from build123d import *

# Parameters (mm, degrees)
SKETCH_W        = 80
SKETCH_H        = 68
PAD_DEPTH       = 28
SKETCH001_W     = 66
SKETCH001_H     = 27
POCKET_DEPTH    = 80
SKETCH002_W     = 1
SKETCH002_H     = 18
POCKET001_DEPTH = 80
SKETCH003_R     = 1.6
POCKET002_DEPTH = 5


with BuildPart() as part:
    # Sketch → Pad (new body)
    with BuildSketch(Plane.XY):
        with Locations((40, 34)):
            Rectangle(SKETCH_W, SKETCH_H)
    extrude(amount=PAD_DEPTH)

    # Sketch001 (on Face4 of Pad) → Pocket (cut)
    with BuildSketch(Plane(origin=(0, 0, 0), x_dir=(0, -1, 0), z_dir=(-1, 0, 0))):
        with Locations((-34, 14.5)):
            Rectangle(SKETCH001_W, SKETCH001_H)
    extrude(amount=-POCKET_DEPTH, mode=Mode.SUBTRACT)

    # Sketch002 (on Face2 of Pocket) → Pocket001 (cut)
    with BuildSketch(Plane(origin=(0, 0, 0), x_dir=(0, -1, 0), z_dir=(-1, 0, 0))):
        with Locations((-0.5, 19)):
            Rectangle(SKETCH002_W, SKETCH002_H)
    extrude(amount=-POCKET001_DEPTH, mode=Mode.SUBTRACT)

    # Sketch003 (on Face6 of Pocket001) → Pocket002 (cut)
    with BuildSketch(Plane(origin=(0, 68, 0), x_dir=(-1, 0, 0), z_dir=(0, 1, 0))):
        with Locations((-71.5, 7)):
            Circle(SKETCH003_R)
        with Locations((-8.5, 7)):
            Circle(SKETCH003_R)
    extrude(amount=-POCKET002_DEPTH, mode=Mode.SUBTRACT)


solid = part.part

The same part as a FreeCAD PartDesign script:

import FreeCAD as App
import Part
import Sketcher
from FreeCAD import Vector


def add_polygon(sketch, points):
    """Adds a closed chain of lines whose ends are joined by coincident constraints."""
    first, n = sketch.GeometryCount, len(points)
    for a, b in zip(points, points[1:] + points[:1]):
        sketch.addGeometry(Part.LineSegment(App.Vector(*a, 0), App.Vector(*b, 0)), False)
    for i in range(n):
        sketch.addConstraint(Sketcher.Constraint("Coincident", first + i, 2, first + (i + 1) % n, 1))

doc = App.newDocument("Part")
body = doc.addObject("PartDesign::Body", "Body")

sketch1 = body.newObject("Sketcher::SketchObject", "Sketch")
sketch1.AttachmentSupport = (doc.getObject("XY_Plane"), [""])
sketch1.MapMode = "FlatFace"
add_polygon(sketch1, [(0, 68), (0, 0), (80, 0), (80, 68)])
sketch1.addConstraint([
    Sketcher.Constraint("Vertical", 0),
    Sketcher.Constraint("Horizontal", 1),
    Sketcher.Constraint("Vertical", 2),
    Sketcher.Constraint("Horizontal", 3),
    Sketcher.Constraint("Coincident", 0, 2, -1, 1),
    Sketcher.Constraint("DistanceX", 1, 1, 1, 2, 80.0),
    Sketcher.Constraint("DistanceY", 0, 2, 0, 1, 68.0),
])
pad1 = body.newObject("PartDesign::Pad", "Pad")
pad1.Profile = sketch1
pad1.Length = 28

sketch2 = body.newObject("Sketcher::SketchObject", "Sketch001")
sketch2.AttachmentSupport = (doc.getObject("YZ_Plane"), [""])
sketch2.MapMode = "FlatFace"
add_polygon(sketch2, [(67, 28), (67, 1), (1, 1), (1, 28)])
sketch2.addConstraint([
    Sketcher.Constraint("Vertical", 0),
    Sketcher.Constraint("Horizontal", 1),
    Sketcher.Constraint("Vertical", 2),
    Sketcher.Constraint("Horizontal", 3),
    Sketcher.Constraint("DistanceX", 1, 2, 1, 1, 66.0),
    Sketcher.Constraint("DistanceY", 0, 2, 0, 1, 27.0),
    Sketcher.Constraint("DistanceX", -1, 1, 0, 2, 67.0),
    Sketcher.Constraint("DistanceY", -1, 1, 0, 2, 1.0),
])
pocket1 = body.newObject("PartDesign::Pocket", "Pocket")
pocket1.Profile = sketch2
pocket1.Length = 80
pocket1.Reversed = True

sketch3 = body.newObject("Sketcher::SketchObject", "Sketch002")
sketch3.AttachmentSupport = (doc.getObject("YZ_Plane"), [""])
sketch3.MapMode = "FlatFace"
add_polygon(sketch3, [(1, 28), (1, 10), (0, 10), (0, 28)])
sketch3.addConstraint([
    Sketcher.Constraint("Vertical", 0),
    Sketcher.Constraint("Horizontal", 1),
    Sketcher.Constraint("Vertical", 2),
    Sketcher.Constraint("Horizontal", 3),
    Sketcher.Constraint("PointOnObject", 1, 2, -2),
    Sketcher.Constraint("DistanceX", 1, 2, 1, 1, 1.0),
    Sketcher.Constraint("DistanceY", 0, 2, 0, 1, 18.0),
    Sketcher.Constraint("DistanceY", -1, 1, 0, 2, 10.0),
])
pocket2 = body.newObject("PartDesign::Pocket", "Pocket001")
pocket2.Profile = sketch3
pocket2.Length = 80
pocket2.Reversed = True

sketch4 = body.newObject("Sketcher::SketchObject", "Sketch003")
sketch4.AttachmentSupport = (doc.getObject("XZ_Plane"), [""])
sketch4.MapMode = "FlatFace"
sketch4.AttachmentOffset = App.Placement(Vector(0, 0, -68), App.Rotation())
sketch4.addGeometry([
    Part.Circle(Vector(71.5, 7, 0), Vector(0, 0, 1), 1.6),
    Part.Circle(Vector(8.5, 7, 0), Vector(0, 0, 1), 1.6),
], False)
sketch4.addConstraint([
    Sketcher.Constraint("Equal", 0, 1),
    Sketcher.Constraint("Horizontal", 0, 3, 1, 3),
    Sketcher.Constraint("Diameter", 0, 3.2),
    Sketcher.Constraint("DistanceY", -1, 1, 0, 3, 7.0),
    Sketcher.Constraint("DistanceX", 1, 3, 0, 3, 63.0),
    Sketcher.Constraint("DistanceX", -1, 1, 0, 3, 71.5),
])
pocket3 = body.newObject("PartDesign::Pocket", "Pocket002")
pocket3.Profile = sketch4
pocket3.Length = 5
pocket3.Reversed = True

doc.recompute()
